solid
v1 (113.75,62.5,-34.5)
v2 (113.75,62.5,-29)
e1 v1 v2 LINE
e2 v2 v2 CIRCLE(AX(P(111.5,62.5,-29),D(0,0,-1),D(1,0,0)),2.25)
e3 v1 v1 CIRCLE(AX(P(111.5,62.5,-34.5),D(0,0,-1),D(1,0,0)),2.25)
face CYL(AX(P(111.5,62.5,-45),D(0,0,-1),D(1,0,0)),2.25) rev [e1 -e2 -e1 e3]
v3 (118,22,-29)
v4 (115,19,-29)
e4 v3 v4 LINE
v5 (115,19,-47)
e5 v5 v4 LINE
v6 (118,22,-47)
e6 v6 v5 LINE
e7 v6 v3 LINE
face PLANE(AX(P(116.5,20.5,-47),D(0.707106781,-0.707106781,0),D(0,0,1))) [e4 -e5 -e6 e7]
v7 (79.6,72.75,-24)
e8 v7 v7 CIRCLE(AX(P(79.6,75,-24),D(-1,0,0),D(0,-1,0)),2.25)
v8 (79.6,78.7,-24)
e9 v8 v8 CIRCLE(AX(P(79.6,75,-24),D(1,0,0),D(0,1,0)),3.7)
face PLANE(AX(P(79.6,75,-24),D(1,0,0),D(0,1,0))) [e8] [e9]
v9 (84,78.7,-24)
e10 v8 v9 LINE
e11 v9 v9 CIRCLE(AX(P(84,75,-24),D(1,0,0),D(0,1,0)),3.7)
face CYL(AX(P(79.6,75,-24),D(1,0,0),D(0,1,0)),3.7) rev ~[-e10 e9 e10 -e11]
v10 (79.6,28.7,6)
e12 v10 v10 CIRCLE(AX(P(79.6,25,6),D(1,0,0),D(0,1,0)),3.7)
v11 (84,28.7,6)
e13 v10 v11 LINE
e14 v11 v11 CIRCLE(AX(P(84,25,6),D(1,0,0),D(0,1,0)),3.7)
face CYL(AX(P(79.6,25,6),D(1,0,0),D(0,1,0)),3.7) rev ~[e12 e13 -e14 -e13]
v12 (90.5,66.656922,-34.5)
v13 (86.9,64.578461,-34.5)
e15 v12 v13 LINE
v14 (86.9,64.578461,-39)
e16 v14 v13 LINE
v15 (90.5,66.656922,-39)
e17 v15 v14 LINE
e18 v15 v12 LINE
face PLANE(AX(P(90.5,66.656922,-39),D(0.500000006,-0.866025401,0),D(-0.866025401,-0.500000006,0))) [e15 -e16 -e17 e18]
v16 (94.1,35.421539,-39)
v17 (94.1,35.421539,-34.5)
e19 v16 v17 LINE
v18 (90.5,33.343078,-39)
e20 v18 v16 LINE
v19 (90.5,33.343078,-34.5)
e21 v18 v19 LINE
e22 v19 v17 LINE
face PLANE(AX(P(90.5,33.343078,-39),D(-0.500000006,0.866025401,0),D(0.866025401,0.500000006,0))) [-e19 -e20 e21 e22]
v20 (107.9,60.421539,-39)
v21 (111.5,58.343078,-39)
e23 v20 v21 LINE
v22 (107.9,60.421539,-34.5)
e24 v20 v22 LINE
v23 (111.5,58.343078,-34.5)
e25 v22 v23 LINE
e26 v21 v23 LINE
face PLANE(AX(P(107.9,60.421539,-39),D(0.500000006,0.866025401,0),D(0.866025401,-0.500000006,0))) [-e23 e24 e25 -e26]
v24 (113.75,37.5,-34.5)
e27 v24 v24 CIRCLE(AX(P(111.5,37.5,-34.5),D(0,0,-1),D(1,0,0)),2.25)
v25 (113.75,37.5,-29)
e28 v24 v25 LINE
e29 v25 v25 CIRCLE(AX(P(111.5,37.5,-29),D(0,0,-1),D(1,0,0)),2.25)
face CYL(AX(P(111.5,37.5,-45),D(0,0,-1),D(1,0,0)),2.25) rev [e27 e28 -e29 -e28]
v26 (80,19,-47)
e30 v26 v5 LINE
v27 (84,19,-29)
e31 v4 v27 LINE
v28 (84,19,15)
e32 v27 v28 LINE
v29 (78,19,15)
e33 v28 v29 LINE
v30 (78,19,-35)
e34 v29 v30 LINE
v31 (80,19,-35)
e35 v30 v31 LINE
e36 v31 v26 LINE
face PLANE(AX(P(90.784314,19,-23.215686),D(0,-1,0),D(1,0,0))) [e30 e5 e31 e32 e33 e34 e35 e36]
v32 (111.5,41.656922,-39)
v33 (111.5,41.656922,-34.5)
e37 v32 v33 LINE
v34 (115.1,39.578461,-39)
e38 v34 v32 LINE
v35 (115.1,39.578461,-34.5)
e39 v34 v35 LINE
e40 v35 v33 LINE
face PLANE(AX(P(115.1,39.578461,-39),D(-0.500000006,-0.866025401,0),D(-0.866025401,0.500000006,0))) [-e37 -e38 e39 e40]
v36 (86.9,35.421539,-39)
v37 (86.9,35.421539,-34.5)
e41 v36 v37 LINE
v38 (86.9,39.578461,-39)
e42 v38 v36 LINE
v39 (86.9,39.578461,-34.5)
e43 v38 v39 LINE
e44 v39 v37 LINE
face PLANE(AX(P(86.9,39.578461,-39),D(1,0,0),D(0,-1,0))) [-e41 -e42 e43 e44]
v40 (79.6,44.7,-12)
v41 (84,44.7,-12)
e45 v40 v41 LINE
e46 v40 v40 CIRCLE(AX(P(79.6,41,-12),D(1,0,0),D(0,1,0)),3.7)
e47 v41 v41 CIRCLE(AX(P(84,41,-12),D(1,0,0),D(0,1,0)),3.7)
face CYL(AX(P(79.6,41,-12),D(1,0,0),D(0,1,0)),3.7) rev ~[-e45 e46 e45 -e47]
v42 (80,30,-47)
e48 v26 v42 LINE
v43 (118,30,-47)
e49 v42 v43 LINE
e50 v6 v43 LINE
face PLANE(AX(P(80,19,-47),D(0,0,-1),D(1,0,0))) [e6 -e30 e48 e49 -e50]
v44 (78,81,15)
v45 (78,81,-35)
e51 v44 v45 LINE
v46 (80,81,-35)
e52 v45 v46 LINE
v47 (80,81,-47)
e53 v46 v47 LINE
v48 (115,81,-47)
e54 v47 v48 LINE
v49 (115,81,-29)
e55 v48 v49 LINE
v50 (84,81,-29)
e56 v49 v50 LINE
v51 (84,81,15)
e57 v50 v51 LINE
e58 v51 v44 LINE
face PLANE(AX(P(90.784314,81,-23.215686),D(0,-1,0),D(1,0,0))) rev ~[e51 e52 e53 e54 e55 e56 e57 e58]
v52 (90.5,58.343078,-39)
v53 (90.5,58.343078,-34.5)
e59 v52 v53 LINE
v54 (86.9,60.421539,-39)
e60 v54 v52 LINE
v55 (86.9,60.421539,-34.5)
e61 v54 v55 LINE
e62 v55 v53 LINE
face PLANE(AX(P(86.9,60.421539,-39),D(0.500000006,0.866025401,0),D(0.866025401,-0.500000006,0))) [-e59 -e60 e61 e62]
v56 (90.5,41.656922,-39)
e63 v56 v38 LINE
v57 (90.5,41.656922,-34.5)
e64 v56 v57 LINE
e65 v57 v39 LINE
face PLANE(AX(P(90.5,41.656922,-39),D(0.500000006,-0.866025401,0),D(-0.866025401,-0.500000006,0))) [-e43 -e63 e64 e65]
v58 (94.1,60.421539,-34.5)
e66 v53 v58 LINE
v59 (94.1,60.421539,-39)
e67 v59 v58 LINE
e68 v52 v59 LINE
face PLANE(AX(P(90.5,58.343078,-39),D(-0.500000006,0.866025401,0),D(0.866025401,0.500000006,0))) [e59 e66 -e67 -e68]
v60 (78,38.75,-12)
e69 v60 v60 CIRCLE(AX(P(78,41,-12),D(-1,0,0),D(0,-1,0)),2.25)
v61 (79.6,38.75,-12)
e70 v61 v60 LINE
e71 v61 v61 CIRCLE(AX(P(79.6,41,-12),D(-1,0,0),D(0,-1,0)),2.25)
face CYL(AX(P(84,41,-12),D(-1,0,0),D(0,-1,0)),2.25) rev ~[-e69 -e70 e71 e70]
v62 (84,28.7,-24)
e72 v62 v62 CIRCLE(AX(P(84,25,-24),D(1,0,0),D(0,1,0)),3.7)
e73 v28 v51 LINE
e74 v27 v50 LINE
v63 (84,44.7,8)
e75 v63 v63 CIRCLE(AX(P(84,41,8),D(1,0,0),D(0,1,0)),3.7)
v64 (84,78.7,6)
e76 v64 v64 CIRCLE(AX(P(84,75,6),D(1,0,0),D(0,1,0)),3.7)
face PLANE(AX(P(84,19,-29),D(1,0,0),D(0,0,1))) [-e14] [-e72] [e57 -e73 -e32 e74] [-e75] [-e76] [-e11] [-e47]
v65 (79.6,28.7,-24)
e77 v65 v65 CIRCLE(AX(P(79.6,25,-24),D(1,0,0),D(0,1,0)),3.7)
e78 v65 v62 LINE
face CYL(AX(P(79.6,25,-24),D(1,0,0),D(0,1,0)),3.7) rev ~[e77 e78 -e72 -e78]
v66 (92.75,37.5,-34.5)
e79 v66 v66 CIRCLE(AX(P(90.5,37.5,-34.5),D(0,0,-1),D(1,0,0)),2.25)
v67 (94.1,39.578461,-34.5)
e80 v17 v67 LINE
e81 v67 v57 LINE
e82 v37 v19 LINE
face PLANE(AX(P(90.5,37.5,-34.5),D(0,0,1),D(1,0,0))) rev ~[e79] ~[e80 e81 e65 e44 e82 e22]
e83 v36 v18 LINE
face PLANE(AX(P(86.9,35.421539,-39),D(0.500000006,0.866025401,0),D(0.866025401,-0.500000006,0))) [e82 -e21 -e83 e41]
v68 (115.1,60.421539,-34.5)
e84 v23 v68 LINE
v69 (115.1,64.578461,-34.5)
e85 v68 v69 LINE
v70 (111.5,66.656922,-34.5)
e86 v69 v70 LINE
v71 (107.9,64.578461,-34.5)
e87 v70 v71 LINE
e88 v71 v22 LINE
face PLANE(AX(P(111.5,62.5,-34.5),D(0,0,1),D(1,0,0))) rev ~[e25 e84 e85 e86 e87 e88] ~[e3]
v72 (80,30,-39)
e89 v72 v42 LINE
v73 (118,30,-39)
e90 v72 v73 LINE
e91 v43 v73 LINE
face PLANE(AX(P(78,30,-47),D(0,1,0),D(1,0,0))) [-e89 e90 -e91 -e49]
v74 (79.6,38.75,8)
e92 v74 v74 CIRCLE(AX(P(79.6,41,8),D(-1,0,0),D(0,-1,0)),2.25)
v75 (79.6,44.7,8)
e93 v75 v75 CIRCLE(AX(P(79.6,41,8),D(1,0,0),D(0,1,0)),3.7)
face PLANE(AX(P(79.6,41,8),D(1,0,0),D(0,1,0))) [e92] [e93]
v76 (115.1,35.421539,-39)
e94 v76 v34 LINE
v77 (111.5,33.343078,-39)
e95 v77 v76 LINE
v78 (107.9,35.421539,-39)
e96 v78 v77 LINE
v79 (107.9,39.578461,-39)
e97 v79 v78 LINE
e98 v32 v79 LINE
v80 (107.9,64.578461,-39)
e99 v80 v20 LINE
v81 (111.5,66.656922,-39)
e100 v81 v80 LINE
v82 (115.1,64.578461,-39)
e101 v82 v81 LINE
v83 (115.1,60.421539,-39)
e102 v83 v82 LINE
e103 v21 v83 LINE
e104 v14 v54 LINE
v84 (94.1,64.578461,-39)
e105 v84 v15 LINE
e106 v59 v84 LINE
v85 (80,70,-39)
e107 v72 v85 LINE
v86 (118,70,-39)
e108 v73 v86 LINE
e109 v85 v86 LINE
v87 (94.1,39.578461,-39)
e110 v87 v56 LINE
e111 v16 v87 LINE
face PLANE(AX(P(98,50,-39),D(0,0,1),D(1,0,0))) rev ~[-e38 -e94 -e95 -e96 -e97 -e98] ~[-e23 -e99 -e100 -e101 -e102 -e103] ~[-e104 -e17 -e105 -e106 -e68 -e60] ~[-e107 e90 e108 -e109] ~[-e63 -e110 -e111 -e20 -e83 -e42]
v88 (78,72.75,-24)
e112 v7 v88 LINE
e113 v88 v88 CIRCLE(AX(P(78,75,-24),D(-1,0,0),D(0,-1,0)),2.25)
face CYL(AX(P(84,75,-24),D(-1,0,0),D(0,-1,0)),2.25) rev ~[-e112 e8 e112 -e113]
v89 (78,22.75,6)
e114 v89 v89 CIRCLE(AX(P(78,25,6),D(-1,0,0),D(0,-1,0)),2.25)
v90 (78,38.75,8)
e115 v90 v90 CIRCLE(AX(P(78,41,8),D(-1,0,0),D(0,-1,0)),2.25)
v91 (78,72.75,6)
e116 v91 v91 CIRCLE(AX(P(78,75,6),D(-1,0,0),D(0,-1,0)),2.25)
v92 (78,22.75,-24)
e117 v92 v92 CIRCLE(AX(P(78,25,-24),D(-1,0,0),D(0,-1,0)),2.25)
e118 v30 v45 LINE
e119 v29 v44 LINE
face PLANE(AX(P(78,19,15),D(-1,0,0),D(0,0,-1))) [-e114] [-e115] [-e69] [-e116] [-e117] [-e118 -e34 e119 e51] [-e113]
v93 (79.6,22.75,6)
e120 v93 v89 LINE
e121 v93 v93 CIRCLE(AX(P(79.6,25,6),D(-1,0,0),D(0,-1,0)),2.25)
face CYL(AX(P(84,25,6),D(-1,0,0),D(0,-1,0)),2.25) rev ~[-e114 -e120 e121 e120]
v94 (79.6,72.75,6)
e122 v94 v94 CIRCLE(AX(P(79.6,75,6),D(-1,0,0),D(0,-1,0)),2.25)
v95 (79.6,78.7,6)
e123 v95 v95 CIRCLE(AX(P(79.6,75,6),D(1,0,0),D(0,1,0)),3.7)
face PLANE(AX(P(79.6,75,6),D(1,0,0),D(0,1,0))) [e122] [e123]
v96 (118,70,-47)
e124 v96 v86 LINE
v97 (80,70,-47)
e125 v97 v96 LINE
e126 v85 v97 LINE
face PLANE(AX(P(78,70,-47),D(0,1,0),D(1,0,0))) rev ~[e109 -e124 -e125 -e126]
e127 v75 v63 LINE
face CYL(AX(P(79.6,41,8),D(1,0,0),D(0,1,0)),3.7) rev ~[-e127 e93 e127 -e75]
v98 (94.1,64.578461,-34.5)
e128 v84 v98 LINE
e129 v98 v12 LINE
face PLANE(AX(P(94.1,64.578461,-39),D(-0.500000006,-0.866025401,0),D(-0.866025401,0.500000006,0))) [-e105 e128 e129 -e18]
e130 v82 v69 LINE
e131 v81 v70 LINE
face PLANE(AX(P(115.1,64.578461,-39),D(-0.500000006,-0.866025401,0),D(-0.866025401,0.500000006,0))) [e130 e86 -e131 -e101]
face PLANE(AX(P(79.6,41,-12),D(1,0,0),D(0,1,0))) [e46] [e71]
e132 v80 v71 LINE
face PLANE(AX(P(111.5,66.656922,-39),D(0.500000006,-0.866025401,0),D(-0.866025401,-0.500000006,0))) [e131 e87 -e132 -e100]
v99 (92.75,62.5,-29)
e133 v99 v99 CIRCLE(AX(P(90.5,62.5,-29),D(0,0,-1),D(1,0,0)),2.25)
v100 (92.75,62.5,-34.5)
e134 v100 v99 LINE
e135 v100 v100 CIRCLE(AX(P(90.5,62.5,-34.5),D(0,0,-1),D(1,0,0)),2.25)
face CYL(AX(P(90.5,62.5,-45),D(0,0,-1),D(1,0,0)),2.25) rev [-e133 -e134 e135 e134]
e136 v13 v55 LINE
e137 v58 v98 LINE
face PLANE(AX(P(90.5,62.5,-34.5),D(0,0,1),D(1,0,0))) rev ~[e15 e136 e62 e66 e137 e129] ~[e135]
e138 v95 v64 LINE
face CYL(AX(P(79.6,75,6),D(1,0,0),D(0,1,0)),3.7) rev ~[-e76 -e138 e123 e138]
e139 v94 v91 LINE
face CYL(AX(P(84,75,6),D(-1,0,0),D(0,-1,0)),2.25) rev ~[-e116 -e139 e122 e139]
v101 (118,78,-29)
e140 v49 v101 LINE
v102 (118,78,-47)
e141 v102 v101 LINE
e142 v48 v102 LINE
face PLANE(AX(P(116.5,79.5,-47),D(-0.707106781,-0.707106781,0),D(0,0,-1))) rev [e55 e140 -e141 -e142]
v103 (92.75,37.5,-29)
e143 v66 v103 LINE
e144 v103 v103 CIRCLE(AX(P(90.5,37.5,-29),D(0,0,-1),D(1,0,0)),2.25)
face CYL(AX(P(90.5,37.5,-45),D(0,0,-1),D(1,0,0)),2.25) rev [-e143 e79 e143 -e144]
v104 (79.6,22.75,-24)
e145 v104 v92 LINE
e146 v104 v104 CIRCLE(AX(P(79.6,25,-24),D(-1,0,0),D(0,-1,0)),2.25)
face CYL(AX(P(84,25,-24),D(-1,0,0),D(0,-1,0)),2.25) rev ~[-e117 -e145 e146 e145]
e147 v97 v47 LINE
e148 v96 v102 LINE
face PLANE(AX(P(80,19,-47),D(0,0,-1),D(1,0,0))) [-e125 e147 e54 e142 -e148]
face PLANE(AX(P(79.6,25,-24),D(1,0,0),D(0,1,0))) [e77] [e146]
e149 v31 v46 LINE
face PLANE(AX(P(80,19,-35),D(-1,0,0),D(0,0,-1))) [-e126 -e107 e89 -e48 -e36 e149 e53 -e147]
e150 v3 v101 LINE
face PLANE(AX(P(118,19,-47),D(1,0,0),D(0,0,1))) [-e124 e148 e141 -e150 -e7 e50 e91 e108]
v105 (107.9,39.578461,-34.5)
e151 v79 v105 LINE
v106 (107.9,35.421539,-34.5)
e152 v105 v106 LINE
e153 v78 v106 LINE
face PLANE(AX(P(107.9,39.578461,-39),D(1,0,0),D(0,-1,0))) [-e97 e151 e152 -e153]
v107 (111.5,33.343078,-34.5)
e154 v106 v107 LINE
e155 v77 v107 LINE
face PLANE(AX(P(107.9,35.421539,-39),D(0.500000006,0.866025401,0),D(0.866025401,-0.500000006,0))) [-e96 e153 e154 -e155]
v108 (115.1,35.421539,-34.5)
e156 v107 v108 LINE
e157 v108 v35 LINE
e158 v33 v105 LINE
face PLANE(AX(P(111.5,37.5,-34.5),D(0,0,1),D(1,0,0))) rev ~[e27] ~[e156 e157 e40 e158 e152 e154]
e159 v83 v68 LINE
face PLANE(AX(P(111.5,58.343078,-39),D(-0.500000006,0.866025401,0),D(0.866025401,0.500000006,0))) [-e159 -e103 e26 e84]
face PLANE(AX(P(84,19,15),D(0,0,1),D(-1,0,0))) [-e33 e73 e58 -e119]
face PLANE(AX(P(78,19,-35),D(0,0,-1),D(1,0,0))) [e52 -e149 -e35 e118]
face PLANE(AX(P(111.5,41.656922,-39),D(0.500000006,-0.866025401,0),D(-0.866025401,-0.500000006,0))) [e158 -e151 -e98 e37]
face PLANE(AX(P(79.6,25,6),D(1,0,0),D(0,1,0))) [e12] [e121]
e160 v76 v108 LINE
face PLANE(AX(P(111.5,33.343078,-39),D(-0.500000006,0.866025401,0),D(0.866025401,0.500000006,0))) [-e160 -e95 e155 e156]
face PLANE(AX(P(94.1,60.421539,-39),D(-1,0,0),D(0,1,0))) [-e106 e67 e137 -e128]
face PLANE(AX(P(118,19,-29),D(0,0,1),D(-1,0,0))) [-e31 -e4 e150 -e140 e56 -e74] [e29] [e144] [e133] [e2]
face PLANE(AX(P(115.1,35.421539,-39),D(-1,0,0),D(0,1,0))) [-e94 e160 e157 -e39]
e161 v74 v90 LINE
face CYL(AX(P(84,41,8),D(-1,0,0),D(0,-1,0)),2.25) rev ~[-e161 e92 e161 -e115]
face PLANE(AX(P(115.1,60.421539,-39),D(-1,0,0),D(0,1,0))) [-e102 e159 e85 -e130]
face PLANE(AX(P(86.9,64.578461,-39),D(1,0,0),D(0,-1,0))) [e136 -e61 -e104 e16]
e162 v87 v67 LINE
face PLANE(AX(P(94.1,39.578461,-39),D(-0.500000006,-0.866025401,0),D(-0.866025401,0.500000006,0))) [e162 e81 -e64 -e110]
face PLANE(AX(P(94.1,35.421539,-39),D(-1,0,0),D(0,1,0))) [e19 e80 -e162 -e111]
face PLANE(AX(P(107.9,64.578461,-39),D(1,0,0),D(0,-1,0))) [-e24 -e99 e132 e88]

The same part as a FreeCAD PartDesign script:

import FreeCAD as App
import Part
import Sketcher
Q = App.Units.Quantity


def edges_at(feature, points):
    """Names of the edges that pass closest to the given points."""
    edges = feature.Shape.Edges
    near = lambda p: min(range(len(edges)), key=lambda i: edges[i].distToShape(Part.Vertex(*p))[0])
    return sorted({f"Edge{near(p) + 1}" for p in points})


def add_polygon(sketch, points):
    """Adds a closed chain of lines whose ends are joined by coincident constraints."""
    first, n = sketch.GeometryCount, len(points)
    for a, b in zip(points, points[1:] + points[:1]):
        sketch.addGeometry(Part.LineSegment(App.Vector(*a, 0), App.Vector(*b, 0)), False)
    for i in range(n):
        sketch.addConstraint(Sketcher.Constraint("Coincident", first + i, 2, first + (i + 1) % n, 1))

doc = App.newDocument("Part")
body = doc.addObject("PartDesign::Body", "Body")

sketch1 = body.newObject("Sketcher::SketchObject", "Sketch")
sketch1.AttachmentSupport = (doc.getObject("XZ_Plane"), [""])
sketch1.MapMode = "FlatFace"
sketch1.AttachmentOffset = App.Placement(App.Vector(0, 0, -19), App.Rotation())
add_polygon(sketch1, [(76, 15), (76, -35), (78, -35), (78, -47), (116, -47), (116, -29), (82, -29), (82, 15)])
sketch1.addConstraint([
    Sketcher.Constraint("Vertical", 0),
    Sketcher.Constraint("Horizontal", 1),
    Sketcher.Constraint("Vertical", 2),
    Sketcher.Constraint("Horizontal", 3),
    Sketcher.Constraint("Vertical", 4),
    Sketcher.Constraint("Horizontal", 5),
    Sketcher.Constraint("Vertical", 6),
    Sketcher.Constraint("Horizontal", 7),
    Sketcher.Constraint("DistanceX", 1, 1, 1, 2, 2.0),
    Sketcher.Constraint("DistanceX", 3, 1, 3, 2, 38.0),
    Sketcher.Constraint("DistanceX", 5, 2, 5, 1, 34.0),
    Sketcher.Constraint("DistanceY", 0, 2, 0, 1, 50.0),
    Sketcher.Constraint("DistanceY", 2, 2, 2, 1, 12.0),
    Sketcher.Constraint("DistanceY", 4, 1, 4, 2, 18.0),
    Sketcher.Constraint("DistanceX", -1, 1, 0, 2, 76.0),
    Sketcher.Constraint("DistanceY", 0, 2, -1, 1, 35.0),
])
pad1 = body.newObject("PartDesign::Pad", "Pad")
pad1.Profile = sketch1
pad1.Length = 62
pad1.Reversed = True

sketch2 = body.newObject("Sketcher::SketchObject", "Sketch001")
sketch2.AttachmentSupport = (doc.getObject("YZ_Plane"), [""])
sketch2.MapMode = "FlatFace"
sketch2.AttachmentOffset = App.Placement(App.Vector(0, 0, 82), App.Rotation())
sketch2.addGeometry([
    Part.Circle(App.Vector(25, -24, 0), App.Vector(0, 0, 1), 2.2),
    Part.Circle(App.Vector(25, 6, 0), App.Vector(0, 0, 1), 2.2),
    Part.Circle(App.Vector(41, 8, 0), App.Vector(0, 0, 1), 2.2),
    Part.Circle(App.Vector(41, -12, 0), App.Vector(0, 0, 1), 2.2),
    Part.Circle(App.Vector(75, 6, 0), App.Vector(0, 0, 1), 2.2),
    Part.Circle(App.Vector(75, -24, 0), App.Vector(0, 0, 1), 2.2),
], False)
sketch2.addConstraint([
    Sketcher.Constraint("Equal", 0, 1),
    Sketcher.Constraint("Equal", 1, 2),
    Sketcher.Constraint("Equal", 2, 3),
    Sketcher.Constraint("Equal", 3, 4),
    Sketcher.Constraint("Equal", 4, 5),
    Sketcher.Constraint("Horizontal", 1, 3, 4, 3),
    Sketcher.Constraint("Horizontal", 0, 3, 5, 3),
    Sketcher.Constraint("Vertical", 0, 3, 1, 3),
    Sketcher.Constraint("Vertical", 2, 3, 3, 3),
    Sketcher.Constraint("Vertical", 4, 3, 5, 3),
    Sketcher.Constraint("Diameter", 0, 4.5),
    Sketcher.Constraint("DistanceX", -1, 1, 0, 3, 25.0),
    Sketcher.Constraint("DistanceY", 0, 3, -1, 1, 24.0),
    Sketcher.Constraint("DistanceY", -1, 1, 1, 3, 6.0),
    Sketcher.Constraint("DistanceX", -1, 1, 2, 3, 41.0),
    Sketcher.Constraint("DistanceY", -1, 1, 2, 3, 8.0),
    Sketcher.Constraint("DistanceY", 3, 3, -1, 1, 12.0),
    Sketcher.Constraint("DistanceX", -1, 1, 4, 3, 75.0),
])
doc.recompute()
hole = body.newObject("PartDesign::Hole", "Hole")
hole.Profile = sketch2
hole.ThreadType = "None"
hole.Diameter = 4.5
hole.DepthType = "Dimension"
hole.Depth = 25
hole.DrillPoint = "Flat"
hole.HoleCutType = "Counterbore"
hole.HoleCutDiameter = 7.4
hole.HoleCutDepth = 4.4

sketch3 = body.newObject("Sketcher::SketchObject", "Sketch002")
sketch3.AttachmentSupport = (doc.getObject("XY_Plane"), [""])
sketch3.MapMode = "FlatFace"
sketch3.AttachmentOffset = App.Placement(App.Vector(0, 0, -45), App.Rotation())
sketch3.addGeometry([
    Part.Circle(App.Vector(88.5, 62.5, 0), App.Vector(0, 0, 1), 2.2),
    Part.Circle(App.Vector(109.5, 37.5, 0), App.Vector(0, 0, 1), 2.2),
    Part.Circle(App.Vector(109.5, 62.5, 0), App.Vector(0, 0, 1), 2.2),
    Part.Circle(App.Vector(88.5, 37.5, 0), App.Vector(0, 0, 1), 2.2),
], False)
sketch3.addConstraint([
    Sketcher.Constraint("Equal", 0, 1),
    Sketcher.Constraint("Equal", 1, 2),
    Sketcher.Constraint("Equal", 2, 3),
    Sketcher.Constraint("Horizontal", 0, 3, 2, 3),
    Sketcher.Constraint("Horizontal", 1, 3, 3, 3),
    Sketcher.Constraint("Vertical", 1, 3, 2, 3),
    Sketcher.Constraint("Vertical", 0, 3, 3, 3),
    Sketcher.Constraint("Diameter", 0, 4.5),
    Sketcher.Constraint("DistanceX", 0, 3, 1, 3, 21.0),
    Sketcher.Constraint("DistanceY", 1, 3, 0, 3, 25.0),
    Sketcher.Constraint("DistanceX", -1, 1, 0, 3, 88.5),
    Sketcher.Constraint("DistanceY", -1, 1, 0, 3, 62.5),
])
pocket1 = body.newObject("PartDesign::Pocket", "Pocket")
pocket1.Profile = sketch3
pocket1.Type = "ThroughAll"
pocket1.Reversed = True

sketch4 = body.newObject("Sketcher::SketchObject", "Sketch003")
sketch4.AttachmentSupport = (doc.getObject("XY_Plane"), [""])
sketch4.MapMode = "FlatFace"
sketch4.AttachmentOffset = App.Placement(App.Vector(0, 0, -39), App.Rotation())
add_polygon(sketch4, [(92.1, 64.6), (88.5, 66.7), (84.9, 64.6), (84.9, 60.4), (88.5, 58.3), (92.1, 60.4)])
add_polygon(sketch4, [(113.1, 64.6), (109.5, 66.7), (105.9, 64.6), (105.9, 60.4), (109.5, 58.3), (113.1, 60.4)])
add_polygon(sketch4, [(113.1, 39.6), (109.5, 41.7), (105.9, 39.6), (105.9, 35.4), (109.5, 33.3), (113.1, 35.4)])
add_polygon(sketch4, [(92.1, 39.6), (88.5, 41.7), (84.9, 39.6), (84.9, 35.4), (88.5, 33.3), (92.1, 35.4)])
sketch4.addConstraint([
    Sketcher.Constraint("Vertical", 2),
    Sketcher.Constraint("Vertical", 5),
    Sketcher.Constraint("Vertical", 8),
    Sketcher.Constraint("Vertical", 11),
    Sketcher.Constraint("Vertical", 14),
    Sketcher.Constraint("Vertical", 17),
    Sketcher.Constraint("Vertical", 20),
    Sketcher.Constraint("Vertical", 23),
    Sketcher.Constraint("Parallel", 0, 3),
    Sketcher.Constraint("Parallel", 1, 4),
    Sketcher.Constraint("Parallel", 3, 6),
    Sketcher.Constraint("Parallel", 4, 7),
    Sketcher.Constraint("Parallel", 6, 9),
    Sketcher.Constraint("Parallel", 7, 10),
    Sketcher.Constraint("Parallel", 9, 12),
    Sketcher.Constraint("Parallel", 10, 13),
    Sketcher.Constraint("Parallel", 12, 15),
    Sketcher.Constraint("Parallel", 13, 16),
    Sketcher.Constraint("Parallel", 15, 18),
    Sketcher.Constraint("Parallel", 16, 19),
    Sketcher.Constraint("Parallel", 18, 21),
    Sketcher.Constraint("Parallel", 19, 22),
    Sketcher.Constraint("Horizontal", 2, 2, 4, 2),
    Sketcher.Constraint("Horizontal", 1, 2, 5, 2),
    Sketcher.Constraint("Horizontal", 0, 2, 6, 2),
    Sketcher.Constraint("Horizontal", 5, 2, 7, 2),
    Sketcher.Constraint("Horizontal", 4, 2, 8, 2),
    Sketcher.Constraint("Horizontal", 3, 2, 9, 2),
    Sketcher.Constraint("Horizontal", 8, 2, 10, 2),
    Sketcher.Constraint("Horizontal", 14, 2, 16, 2),
    Sketcher.Constraint("Horizontal", 13, 2, 17, 2),
    Sketcher.Constraint("Horizontal", 12, 2, 18, 2),
    Sketcher.Constraint("Horizontal", 17, 2, 19, 2),
    Sketcher.Constraint("Horizontal", 16, 2, 20, 2),
    Sketcher.Constraint("Horizontal", 15, 2, 21, 2),
    Sketcher.Constraint("Horizontal", 20, 2, 22, 2),
    Sketcher.Constraint("Vertical", 0, 2, 3, 2),
    Sketcher.Constraint("Vertical", 9, 2, 12, 2),
    Sketcher.Constraint("Vertical", 8, 2, 13, 2),
    Sketcher.Constraint("Vertical", 3, 2, 18, 2),
    Sketcher.Constraint("Equal", 11, 14),
    Sketcher.Constraint("Angle", 0, Q("150 deg")),
    Sketcher.Constraint("DistanceX", 0, 2, 6, 2, 21.0),
    Sketcher.Constraint("DistanceY", 14, 2, 8, 2, 25.0),
    Sketcher.Constraint("DistanceX", -1, 1, 0, 2, 88.5),
    Sketcher.Constraint("DistanceX", -1, 1, 1, 2, 84.9),
    Sketcher.Constraint("DistanceY", 14, 2, 14, 1, 4.156922),
    Sketcher.Constraint("DistanceY", -1, 1, 0, 2, 66.656922),
])
pocket2 = body.newObject("PartDesign::Pocket", "Pocket001")
pocket2.Profile = sketch4
pocket2.Length = 4.5
pocket2.Reversed = True

sketch5 = body.newObject("Sketcher::SketchObject", "Sketch004")
sketch5.AttachmentSupport = (doc.getObject("XY_Plane"), [""])
sketch5.MapMode = "FlatFace"
sketch5.AttachmentOffset = App.Placement(App.Vector(0, 0, -47), App.Rotation())
add_polygon(sketch5, [(76, 70), (76, 30), (116, 30), (116, 70)])
sketch5.addConstraint([
    Sketcher.Constraint("Vertical", 0),
    Sketcher.Constraint("Horizontal", 1),
    Sketcher.Constraint("Vertical", 2),
    Sketcher.Constraint("Horizontal", 3),
    Sketcher.Constraint("Equal", 3, 0),
    Sketcher.Constraint("DistanceX", 1, 1, 1, 2, 40.0),
    Sketcher.Constraint("DistanceX", -1, 1, 0, 2, 76.0),
    Sketcher.Constraint("DistanceY", -1, 1, 0, 2, 30.0),
])
pocket3 = body.newObject("PartDesign::Pocket", "Pocket002")
pocket3.Profile = sketch5
pocket3.Length = 8
pocket3.Reversed = True
doc.recompute()

chamfer = body.newObject("PartDesign::Chamfer", "Chamfer")
chamfer.Base = (pocket3, edges_at(pocket3, [(116, 81, -38)]))
chamfer.Size = 3
doc.recompute()

chamfer2 = body.newObject("PartDesign::Chamfer", "Chamfer001")
chamfer2.Base = (chamfer, edges_at(chamfer, [(116, 19, -38)]))
chamfer2.Size = 3
body2 = doc.addObject("PartDesign::Body", "Body001")
doc.recompute()

body.Placement = App.Placement(App.Vector(2, 0, 0), App.Rotation(App.Vector(0, 0, 1), 0))
boolean = body2.newObject("PartDesign::Boolean", "Boolean")
boolean.Type = "Fuse"
boolean.addObjects([body])

doc.recompute()
